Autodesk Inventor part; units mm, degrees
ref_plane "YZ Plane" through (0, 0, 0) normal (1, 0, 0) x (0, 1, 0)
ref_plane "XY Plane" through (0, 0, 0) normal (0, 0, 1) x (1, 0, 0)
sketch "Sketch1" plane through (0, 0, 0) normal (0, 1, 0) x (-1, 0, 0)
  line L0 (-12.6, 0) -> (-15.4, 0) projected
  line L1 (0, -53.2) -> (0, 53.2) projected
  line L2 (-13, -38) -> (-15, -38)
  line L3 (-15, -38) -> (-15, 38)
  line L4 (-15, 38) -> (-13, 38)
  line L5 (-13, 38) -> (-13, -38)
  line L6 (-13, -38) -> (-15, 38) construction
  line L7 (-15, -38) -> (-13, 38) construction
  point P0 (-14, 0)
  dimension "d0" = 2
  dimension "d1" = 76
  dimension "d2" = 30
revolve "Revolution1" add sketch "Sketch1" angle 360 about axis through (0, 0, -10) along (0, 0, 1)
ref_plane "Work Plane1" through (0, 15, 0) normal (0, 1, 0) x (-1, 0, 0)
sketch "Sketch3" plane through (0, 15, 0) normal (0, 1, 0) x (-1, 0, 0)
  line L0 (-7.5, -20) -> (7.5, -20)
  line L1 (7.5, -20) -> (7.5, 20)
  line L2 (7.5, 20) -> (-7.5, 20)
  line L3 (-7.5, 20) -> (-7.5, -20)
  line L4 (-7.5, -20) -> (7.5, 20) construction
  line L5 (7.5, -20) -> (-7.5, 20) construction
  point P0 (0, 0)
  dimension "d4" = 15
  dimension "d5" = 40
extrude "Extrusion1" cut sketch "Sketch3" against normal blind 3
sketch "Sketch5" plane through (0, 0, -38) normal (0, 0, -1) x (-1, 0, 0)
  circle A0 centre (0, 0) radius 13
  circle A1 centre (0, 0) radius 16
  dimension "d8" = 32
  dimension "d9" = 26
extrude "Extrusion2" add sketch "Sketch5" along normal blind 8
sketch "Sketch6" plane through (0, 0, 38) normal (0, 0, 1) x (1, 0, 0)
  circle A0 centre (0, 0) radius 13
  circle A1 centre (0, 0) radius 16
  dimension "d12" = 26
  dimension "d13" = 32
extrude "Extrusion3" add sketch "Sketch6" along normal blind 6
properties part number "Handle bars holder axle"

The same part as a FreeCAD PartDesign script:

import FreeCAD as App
import Part
import Sketcher

V = App.Vector
Q = App.Units.Quantity

doc = App.newDocument("Part")
body = doc.addObject("PartDesign::Body", "Body")

# Sketch on XZ plane
sketch1 = body.newObject("Sketcher::SketchObject", "Sketch")
sketch1.AttachmentSupport = (doc.getObject("XZ_Plane"), [""])
sketch1.MapMode = "FlatFace"
sketch1.addGeometry([
    Part.LineSegment(V(13, -38, 0), V(13, 38, 0)),
    Part.LineSegment(V(13, 38, 0), V(15, 38, 0)),
    Part.LineSegment(V(15, 38, 0), V(15, -38, 0)),
    Part.LineSegment(V(15, -38, 0), V(13, -38, 0)),
], False)
sketch1.addConstraint([
    Sketcher.Constraint("Coincident", 0, 2, 1, 1),
    Sketcher.Constraint("Coincident", 1, 2, 2, 1),
    Sketcher.Constraint("Coincident", 2, 2, 3, 1),
    Sketcher.Constraint("Coincident", 3, 2, 0, 1),
    Sketcher.Constraint("Vertical", 0),
    Sketcher.Constraint("Horizontal", 1),
    Sketcher.Constraint("Vertical", 2),
    Sketcher.Constraint("Horizontal", 3),
    Sketcher.Constraint("DistanceX", 1, 1, 1, 2, Q("2 mm")),
    Sketcher.Constraint("DistanceY", 0, 1, 0, 2, Q("76 mm")),
    Sketcher.Constraint("DistanceX", -1, 1, 0, 2, Q("13 mm")),
    Sketcher.Constraint("DistanceY", -1, 1, 0, 2, Q("38 mm")),
])
revolution = body.newObject("PartDesign::Revolution", "Revolution")
revolution.Profile = sketch1
revolution.ReferenceAxis = (sketch1, ["V_Axis"])
revolution.Angle = 360

# Sketch on XZ plane
sketch2 = body.newObject("Sketcher::SketchObject", "Sketch001")
sketch2.AttachmentSupport = (doc.getObject("XZ_Plane"), [""])
sketch2.MapMode = "FlatFace"
sketch2.AttachmentOffset = App.Placement(V(0, 0, -15), App.Rotation())
sketch2.addGeometry([
    Part.LineSegment(V(8, 20, 0), V(8, -20, 0)),
    Part.LineSegment(V(8, -20, 0), V(-8, -20, 0)),
    Part.LineSegment(V(-8, -20, 0), V(-8, 20, 0)),
    Part.LineSegment(V(-8, 20, 0), V(8, 20, 0)),
], False)
sketch2.addConstraint([
    Sketcher.Constraint("Coincident", 0, 2, 1, 1),
    Sketcher.Constraint("Coincident", 1, 2, 2, 1),
    Sketcher.Constraint("Coincident", 2, 2, 3, 1),
    Sketcher.Constraint("Coincident", 3, 2, 0, 1),
    Sketcher.Constraint("Vertical", 0),
    Sketcher.Constraint("Horizontal", 1),
    Sketcher.Constraint("Vertical", 2),
    Sketcher.Constraint("Horizontal", 3),
    Sketcher.Constraint("Symmetric", 0, 2, 2, 2, -1, 1),
    Sketcher.Constraint("DistanceX", 1, 2, 1, 1, Q("15 mm")),
    Sketcher.Constraint("DistanceY", 0, 2, 0, 1, Q("40 mm")),
])
pocket1 = body.newObject("PartDesign::Pocket", "Pocket")
pocket1.Profile = sketch2
pocket1.Length = 3
pocket1.Reversed = True

# Sketch on XY plane
sketch3 = body.newObject("Sketcher::SketchObject", "Sketch002")
sketch3.AttachmentSupport = (doc.getObject("XY_Plane"), [""])
sketch3.MapMode = "FlatFace"
sketch3.AttachmentOffset = App.Placement(V(0, 0, -38), App.Rotation())
sketch3.addGeometry([
    Part.Circle(V(0, 0, 0), V(0, 0, 1), 16),
    Part.Circle(V(0, 0, 0), V(0, 0, 1), 13),
], False)
sketch3.addConstraint([
    Sketcher.Constraint("Coincident", 0, 3, -1, 1),
    Sketcher.Constraint("Coincident", 1, 3, -1, 1),
    Sketcher.Constraint("Diameter", 0, Q("32 mm")),
    Sketcher.Constraint("Diameter", 1, Q("26 mm")),
])
pad1 = body.newObject("PartDesign::Pad", "Pad")
pad1.Profile = sketch3
pad1.Length = 8
pad1.Reversed = True

# Sketch on XY plane
sketch4 = body.newObject("Sketcher::SketchObject", "Sketch003")
sketch4.AttachmentSupport = (doc.getObject("XY_Plane"), [""])
sketch4.MapMode = "FlatFace"
sketch4.AttachmentOffset = App.Placement(V(0, 0, 38), App.Rotation())
sketch4.addGeometry([
    Part.Circle(V(0, 0, 0), V(0, 0, 1), 16),
    Part.Circle(V(0, 0, 0), V(0, 0, 1), 13),
], False)
sketch4.addConstraint([
    Sketcher.Constraint("Coincident", 0, 3, -1, 1),
    Sketcher.Constraint("Coincident", 1, 3, -1, 1),
    Sketcher.Constraint("Diameter", 0, Q("32 mm")),
    Sketcher.Constraint("Diameter", 1, Q("26 mm")),
])
pad2 = body.newObject("PartDesign::Pad", "Pad001")
pad2.Profile = sketch4
pad2.Length = 6

doc.recompute()
